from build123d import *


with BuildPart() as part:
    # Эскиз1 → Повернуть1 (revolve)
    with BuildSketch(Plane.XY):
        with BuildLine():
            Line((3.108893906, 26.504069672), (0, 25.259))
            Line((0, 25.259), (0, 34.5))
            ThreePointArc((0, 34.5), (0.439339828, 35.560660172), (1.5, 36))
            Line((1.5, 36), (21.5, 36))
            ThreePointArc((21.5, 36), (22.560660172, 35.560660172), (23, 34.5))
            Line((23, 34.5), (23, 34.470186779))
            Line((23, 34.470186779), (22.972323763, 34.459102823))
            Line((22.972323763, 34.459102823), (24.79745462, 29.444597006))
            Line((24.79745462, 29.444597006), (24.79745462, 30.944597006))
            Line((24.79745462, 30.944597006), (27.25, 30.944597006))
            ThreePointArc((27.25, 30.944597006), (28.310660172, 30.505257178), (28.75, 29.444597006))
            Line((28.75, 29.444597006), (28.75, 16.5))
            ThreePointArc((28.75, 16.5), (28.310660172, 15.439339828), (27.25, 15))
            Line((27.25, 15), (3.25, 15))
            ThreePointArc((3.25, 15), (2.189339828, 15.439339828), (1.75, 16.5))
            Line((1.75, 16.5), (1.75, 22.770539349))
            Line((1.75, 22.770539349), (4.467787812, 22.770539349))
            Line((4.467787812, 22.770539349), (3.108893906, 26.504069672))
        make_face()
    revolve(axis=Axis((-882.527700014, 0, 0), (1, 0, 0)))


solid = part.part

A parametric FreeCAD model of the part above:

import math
import FreeCAD as App
import Part
import Sketcher

V = App.Vector
Q = App.Units.Quantity

doc = App.newDocument("Part")
body = doc.addObject("PartDesign::Body", "Body")

# Sketch on XY plane
sketch1 = body.newObject("Sketcher::SketchObject", "Sketch")
sketch1.AttachmentSupport = (doc.getObject("XY_Plane"), [""])
sketch1.MapMode = "FlatFace"
sketch1.addGeometry(Part.LineSegment(V(0, 25.259, 0), V(3.109, 26.504, 0)), False)
sketch1.addGeometry(Part.LineSegment(V(3.109, 26.504, 0), V(4.468, 22.771, 0)), False)
sketch1.addGeometry(Part.LineSegment(V(4.468, 22.771, 0), V(1.75, 22.771, 0)), False)
sketch1.addGeometry(Part.LineSegment(V(1.75, 22.771, 0), V(1.75, 16.5, 0)), False)
sketch1.addGeometry(Part.ArcOfCircle(Part.Circle(V(3.25, 16.5, 0), V(0, 0, 1), 1.5), math.radians(180), math.radians(270)), False)
sketch1.addGeometry(Part.LineSegment(V(3.25, 15, 0), V(27.25, 15, 0)), False)
sketch1.addGeometry(Part.ArcOfCircle(Part.Circle(V(27.25, 16.5, 0), V(0, 0, 1), 1.5), math.radians(-90), math.radians(0)), False)
sketch1.addGeometry(Part.LineSegment(V(28.75, 16.5, 0), V(28.75, 29.445, 0)), False)
sketch1.addGeometry(Part.ArcOfCircle(Part.Circle(V(27.25, 29.445, 0), V(0, 0, 1), 1.5), math.radians(0), math.radians(90)), False)
sketch1.addGeometry(Part.LineSegment(V(27.25, 30.945, 0), V(24.797, 30.945, 0)), False)
sketch1.addGeometry(Part.LineSegment(V(24.797, 30.945, 0), V(24.797, 29.445, 0)), False)
sketch1.addGeometry(Part.LineSegment(V(24.797, 29.445, 0), V(22.972, 34.459, 0)), False)
sketch1.addGeometry(Part.LineSegment(V(22.972, 34.459, 0), V(23, 34.47, 0)), False)
sketch1.addGeometry(Part.LineSegment(V(23, 34.47, 0), V(23, 34.5, 0)), False)
sketch1.addGeometry(Part.ArcOfCircle(Part.Circle(V(21.5, 34.5, 0), V(0, 0, 1), 1.5), math.radians(0), math.radians(90)), False)
sketch1.addGeometry(Part.LineSegment(V(21.5, 36, 0), V(1.5, 36, 0)), False)
sketch1.addGeometry(Part.ArcOfCircle(Part.Circle(V(1.5, 34.5, 0), V(0, 0, 1), 1.5), math.radians(90), math.radians(180)), False)
sketch1.addGeometry(Part.LineSegment(V(0, 34.5, 0), V(0, 25.259, 0)), False)
sketch1.addConstraint(Sketcher.Constraint("Coincident", 0, 2, 1, 1))
sketch1.addConstraint(Sketcher.Constraint("Coincident", 1, 2, 2, 1))
sketch1.addConstraint(Sketcher.Constraint("Coincident", 2, 2, 3, 1))
sketch1.addConstraint(Sketcher.Constraint("Tangent", 3, 2, 4, 1))
sketch1.addConstraint(Sketcher.Constraint("Tangent", 4, 2, 5, 1))
sketch1.addConstraint(Sketcher.Constraint("Tangent", 5, 2, 6, 1))
sketch1.addConstraint(Sketcher.Constraint("Tangent", 6, 2, 7, 1))
sketch1.addConstraint(Sketcher.Constraint("Tangent", 7, 2, 8, 1))
sketch1.addConstraint(Sketcher.Constraint("Tangent", 8, 2, 9, 1))
sketch1.addConstraint(Sketcher.Constraint("Coincident", 9, 2, 10, 1))
sketch1.addConstraint(Sketcher.Constraint("Coincident", 10, 2, 11, 1))
sketch1.addConstraint(Sketcher.Constraint("Coincident", 11, 2, 12, 1))
sketch1.addConstraint(Sketcher.Constraint("Coincident", 12, 2, 13, 1))
sketch1.addConstraint(Sketcher.Constraint("Tangent", 13, 2, 14, 1))
sketch1.addConstraint(Sketcher.Constraint("Tangent", 14, 2, 15, 1))
sketch1.addConstraint(Sketcher.Constraint("Tangent", 15, 2, 16, 1))
sketch1.addConstraint(Sketcher.Constraint("Tangent", 16, 2, 17, 1))
sketch1.addConstraint(Sketcher.Constraint("Coincident", 17, 2, 0, 1))
sketch1.addConstraint(Sketcher.Constraint("Horizontal", 2))
sketch1.addConstraint(Sketcher.Constraint("Vertical", 3))
sketch1.addConstraint(Sketcher.Constraint("Horizontal", 5))
sketch1.addConstraint(Sketcher.Constraint("Vertical", 7))
sketch1.addConstraint(Sketcher.Constraint("Horizontal", 9))
sketch1.addConstraint(Sketcher.Constraint("Vertical", 10))
sketch1.addConstraint(Sketcher.Constraint("Vertical", 13))
sketch1.addConstraint(Sketcher.Constraint("Horizontal", 15))
sketch1.addConstraint(Sketcher.Constraint("Vertical", 17))
sketch1.addConstraint(Sketcher.Constraint("Equal", 4, 6))
sketch1.addConstraint(Sketcher.Constraint("Equal", 6, 8))
sketch1.addConstraint(Sketcher.Constraint("Equal", 8, 14))
sketch1.addConstraint(Sketcher.Constraint("Equal", 14, 16))
sketch1.addConstraint(Sketcher.Constraint("PointOnObject", 16, 2, -2))
sketch1.addConstraint(Sketcher.Constraint("Parallel", 1, 11))
sketch1.addConstraint(Sketcher.Constraint("Parallel", 0, 12))
sketch1.addConstraint(Sketcher.Constraint("Horizontal", 7, 2, 10, 2))
sketch1.addConstraint(Sketcher.Constraint("Radius", 4, 1.5))
sketch1.addConstraint(Sketcher.Constraint("DistanceX", 5, 1, 5, 2, 24.0))
sketch1.addConstraint(Sketcher.Constraint("DistanceX", 15, 2, 15, 1, 20.0))
sketch1.addConstraint(Sketcher.Constraint("Angle", 1, Q("-70 deg")))
sketch1.addConstraint(Sketcher.Constraint("DistanceY", -1, 1, 4, 2, 15.0))
sketch1.addConstraint(Sketcher.Constraint("DistanceY", -1, 1, 14, 2, 36.0))
sketch1.addConstraint(Sketcher.Constraint("DistanceY", 17, 2, 17, 1, 9.241))
sketch1.addConstraint(Sketcher.Constraint("DistanceX", -1, 1, 4, 3, 3.25))
sketch1.addConstraint(Sketcher.Constraint("DistanceY", 3, 2, 3, 1, 6.270539))
sketch1.addConstraint(Sketcher.Constraint("Distance", 1, 3.97314))
sketch1.addConstraint(Sketcher.Constraint("DistanceX", 2, 2, 2, 1, 2.717788))
sketch1.addConstraint(Sketcher.Constraint("DistanceX", 9, 2, 9, 1, 2.452545))
sketch1.addConstraint(Sketcher.Constraint("DistanceY", 7, 1, 7, 2, 12.944597))
sketch1.addConstraint(Sketcher.Constraint("DistanceY", 13, 1, 13, 2, 0.029813))
revolution = body.newObject("PartDesign::Revolution", "Revolution")
revolution.Profile = sketch1
revolution.ReferenceAxis = (sketch1, ["H_Axis"])
revolution.Angle = 360

doc.recompute()
